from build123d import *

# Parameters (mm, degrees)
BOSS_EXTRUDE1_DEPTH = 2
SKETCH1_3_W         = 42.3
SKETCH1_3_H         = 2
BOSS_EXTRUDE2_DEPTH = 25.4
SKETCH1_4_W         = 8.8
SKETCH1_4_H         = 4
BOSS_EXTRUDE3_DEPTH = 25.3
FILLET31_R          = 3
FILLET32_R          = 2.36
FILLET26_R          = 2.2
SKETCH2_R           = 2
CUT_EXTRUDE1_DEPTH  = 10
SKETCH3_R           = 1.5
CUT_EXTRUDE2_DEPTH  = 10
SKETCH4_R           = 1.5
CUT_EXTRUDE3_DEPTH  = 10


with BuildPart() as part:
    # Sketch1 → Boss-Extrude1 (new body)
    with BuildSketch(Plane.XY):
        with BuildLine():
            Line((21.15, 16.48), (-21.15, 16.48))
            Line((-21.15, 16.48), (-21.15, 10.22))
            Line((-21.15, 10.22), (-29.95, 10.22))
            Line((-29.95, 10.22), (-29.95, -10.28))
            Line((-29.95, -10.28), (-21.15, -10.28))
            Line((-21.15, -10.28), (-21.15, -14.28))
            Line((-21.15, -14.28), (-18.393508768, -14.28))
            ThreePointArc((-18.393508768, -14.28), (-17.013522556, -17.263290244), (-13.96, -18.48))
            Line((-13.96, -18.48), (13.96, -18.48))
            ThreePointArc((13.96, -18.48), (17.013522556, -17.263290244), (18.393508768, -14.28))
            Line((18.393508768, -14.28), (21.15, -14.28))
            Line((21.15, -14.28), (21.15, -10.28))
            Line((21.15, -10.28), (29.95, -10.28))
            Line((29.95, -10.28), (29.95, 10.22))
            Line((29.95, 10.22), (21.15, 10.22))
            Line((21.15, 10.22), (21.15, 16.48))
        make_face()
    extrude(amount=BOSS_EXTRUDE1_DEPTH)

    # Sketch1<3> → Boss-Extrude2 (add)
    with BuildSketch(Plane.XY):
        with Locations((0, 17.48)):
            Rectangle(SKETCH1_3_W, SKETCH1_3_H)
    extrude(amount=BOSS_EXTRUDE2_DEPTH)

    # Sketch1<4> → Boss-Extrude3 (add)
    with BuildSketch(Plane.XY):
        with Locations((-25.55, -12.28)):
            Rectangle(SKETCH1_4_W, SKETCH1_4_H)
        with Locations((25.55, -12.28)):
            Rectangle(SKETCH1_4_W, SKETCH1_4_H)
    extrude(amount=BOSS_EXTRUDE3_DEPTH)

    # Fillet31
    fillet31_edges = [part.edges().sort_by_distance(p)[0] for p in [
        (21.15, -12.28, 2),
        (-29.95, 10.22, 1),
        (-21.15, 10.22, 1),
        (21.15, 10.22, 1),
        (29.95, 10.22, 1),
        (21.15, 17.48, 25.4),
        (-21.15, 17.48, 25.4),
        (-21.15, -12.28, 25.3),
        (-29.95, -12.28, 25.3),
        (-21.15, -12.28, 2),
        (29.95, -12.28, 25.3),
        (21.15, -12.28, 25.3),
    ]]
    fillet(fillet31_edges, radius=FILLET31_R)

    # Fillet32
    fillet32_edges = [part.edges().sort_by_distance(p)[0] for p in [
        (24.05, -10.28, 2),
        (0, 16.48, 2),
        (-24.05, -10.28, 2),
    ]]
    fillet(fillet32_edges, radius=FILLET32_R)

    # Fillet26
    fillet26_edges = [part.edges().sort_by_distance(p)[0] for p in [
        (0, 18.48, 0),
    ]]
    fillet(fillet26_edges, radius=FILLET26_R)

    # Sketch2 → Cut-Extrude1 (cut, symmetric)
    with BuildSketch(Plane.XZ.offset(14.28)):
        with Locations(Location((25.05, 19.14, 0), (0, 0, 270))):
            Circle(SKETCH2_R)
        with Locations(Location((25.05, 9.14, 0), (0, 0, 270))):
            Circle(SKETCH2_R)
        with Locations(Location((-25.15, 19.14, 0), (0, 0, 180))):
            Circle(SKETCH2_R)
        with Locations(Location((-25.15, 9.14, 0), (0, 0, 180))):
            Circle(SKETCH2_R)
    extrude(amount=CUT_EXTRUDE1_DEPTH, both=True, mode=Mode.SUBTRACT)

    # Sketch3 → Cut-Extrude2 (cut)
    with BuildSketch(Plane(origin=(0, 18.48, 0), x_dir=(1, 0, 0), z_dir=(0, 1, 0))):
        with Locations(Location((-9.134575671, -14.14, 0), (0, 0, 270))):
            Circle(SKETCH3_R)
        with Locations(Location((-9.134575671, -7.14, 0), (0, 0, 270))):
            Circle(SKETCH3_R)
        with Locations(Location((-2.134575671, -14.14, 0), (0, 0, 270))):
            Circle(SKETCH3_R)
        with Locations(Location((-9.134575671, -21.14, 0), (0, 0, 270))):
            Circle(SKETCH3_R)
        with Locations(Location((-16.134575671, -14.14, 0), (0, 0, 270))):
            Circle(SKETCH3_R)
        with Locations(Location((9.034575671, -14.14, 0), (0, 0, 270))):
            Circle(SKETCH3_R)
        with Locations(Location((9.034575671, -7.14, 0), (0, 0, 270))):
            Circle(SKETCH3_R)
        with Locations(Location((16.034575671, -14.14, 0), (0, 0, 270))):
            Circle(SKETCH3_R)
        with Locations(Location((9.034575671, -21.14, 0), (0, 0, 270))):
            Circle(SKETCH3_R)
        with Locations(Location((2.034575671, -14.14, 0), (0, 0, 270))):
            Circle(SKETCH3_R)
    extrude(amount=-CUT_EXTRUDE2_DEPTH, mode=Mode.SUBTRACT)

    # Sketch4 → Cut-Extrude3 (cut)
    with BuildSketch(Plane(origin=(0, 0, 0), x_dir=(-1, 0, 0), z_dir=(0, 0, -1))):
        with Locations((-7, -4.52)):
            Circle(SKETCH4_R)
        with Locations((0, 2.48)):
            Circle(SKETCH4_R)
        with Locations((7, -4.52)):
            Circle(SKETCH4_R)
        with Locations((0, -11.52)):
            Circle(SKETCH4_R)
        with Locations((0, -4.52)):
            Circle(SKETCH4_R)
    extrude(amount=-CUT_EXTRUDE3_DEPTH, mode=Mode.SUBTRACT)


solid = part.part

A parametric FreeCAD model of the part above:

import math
import FreeCAD as App
import Part
import Sketcher
Q = App.Units.Quantity


def edges_at(feature, points):
    """Names of the edges that pass closest to the given points."""
    edges = feature.Shape.Edges
    near = lambda p: min(range(len(edges)), key=lambda i: edges[i].distToShape(Part.Vertex(*p))[0])
    return sorted({f"Edge{near(p) + 1}" for p in points})


def add_polygon(sketch, points):
    """Adds a closed chain of lines whose ends are joined by coincident constraints."""
    first, n = sketch.GeometryCount, len(points)
    for a, b in zip(points, points[1:] + points[:1]):
        sketch.addGeometry(Part.LineSegment(App.Vector(*a, 0), App.Vector(*b, 0)), False)
    for i in range(n):
        sketch.addConstraint(Sketcher.Constraint("Coincident", first + i, 2, first + (i + 1) % n, 1))

doc = App.newDocument("Part")
body = doc.addObject("PartDesign::Body", "Body")

# Sketch on XY plane
sketch1 = doc.addObject("Sketcher::SketchObject", "Sketch")
body.addObject(sketch1)
sketch1.AttachmentSupport = (doc.XY_Plane, [""])
sketch1.MapMode = "FlatFace"
sketch1.addGeometry(Part.LineSegment(App.Vector(21.1, 16.5, 0), App.Vector(-21.1, 16.5, 0)), False)
sketch1.addGeometry(Part.LineSegment(App.Vector(-21.1, 16.5, 0), App.Vector(-21.1, 10.2, 0)), False)
sketch1.addGeometry(Part.LineSegment(App.Vector(-21.1, 10.2, 0), App.Vector(-29.9, 10.2, 0)), False)
sketch1.addGeometry(Part.LineSegment(App.Vector(-29.9, 10.2, 0), App.Vector(-29.9, -10.3, 0)), False)
sketch1.addGeometry(Part.LineSegment(App.Vector(-29.9, -10.3, 0), App.Vector(-21.1, -10.3, 0)), False)
sketch1.addGeometry(Part.LineSegment(App.Vector(-21.1, -10.3, 0), App.Vector(-21.1, -14.3, 0)), False)
sketch1.addGeometry(Part.LineSegment(App.Vector(-21.1, -14.3, 0), App.Vector(-18.4, -14.3, 0)), False)
sketch1.addGeometry(Part.ArcOfCircle(Part.Circle(App.Vector(-14, -14, 0), App.Vector(0, 0, 1), 4.4), math.radians(-177), math.radians(-90)), False)
sketch1.addGeometry(Part.LineSegment(App.Vector(-14, -18.5, 0), App.Vector(14, -18.5, 0)), False)
sketch1.addGeometry(Part.ArcOfCircle(Part.Circle(App.Vector(14, -14, 0), App.Vector(0, 0, 1), 4.4), math.radians(-90), math.radians(-3)), False)
sketch1.addGeometry(Part.LineSegment(App.Vector(18.4, -14.3, 0), App.Vector(21.1, -14.3, 0)), False)
sketch1.addGeometry(Part.LineSegment(App.Vector(21.1, -14.3, 0), App.Vector(21.1, -10.3, 0)), False)
sketch1.addGeometry(Part.LineSegment(App.Vector(21.1, -10.3, 0), App.Vector(29.9, -10.3, 0)), False)
sketch1.addGeometry(Part.LineSegment(App.Vector(29.9, -10.3, 0), App.Vector(29.9, 10.2, 0)), False)
sketch1.addGeometry(Part.LineSegment(App.Vector(29.9, 10.2, 0), App.Vector(21.1, 10.2, 0)), False)
sketch1.addGeometry(Part.LineSegment(App.Vector(21.1, 10.2, 0), App.Vector(21.1, 16.5, 0)), False)
sketch1.addConstraint(Sketcher.Constraint("Coincident", 0, 2, 1, 1))
sketch1.addConstraint(Sketcher.Constraint("Coincident", 1, 2, 2, 1))
sketch1.addConstraint(Sketcher.Constraint("Coincident", 2, 2, 3, 1))
sketch1.addConstraint(Sketcher.Constraint("Coincident", 3, 2, 4, 1))
sketch1.addConstraint(Sketcher.Constraint("Coincident", 4, 2, 5, 1))
sketch1.addConstraint(Sketcher.Constraint("Coincident", 5, 2, 6, 1))
sketch1.addConstraint(Sketcher.Constraint("Coincident", 6, 2, 7, 1))
sketch1.addConstraint(Sketcher.Constraint("Tangent", 7, 2, 8, 1))
sketch1.addConstraint(Sketcher.Constraint("Tangent", 8, 2, 9, 1))
sketch1.addConstraint(Sketcher.Constraint("Coincident", 9, 2, 10, 1))
sketch1.addConstraint(Sketcher.Constraint("Coincident", 10, 2, 11, 1))
sketch1.addConstraint(Sketcher.Constraint("Coincident", 11, 2, 12, 1))
sketch1.addConstraint(Sketcher.Constraint("Coincident", 12, 2, 13, 1))
sketch1.addConstraint(Sketcher.Constraint("Coincident", 13, 2, 14, 1))
sketch1.addConstraint(Sketcher.Constraint("Coincident", 14, 2, 15, 1))
sketch1.addConstraint(Sketcher.Constraint("Coincident", 15, 2, 0, 1))
sketch1.addConstraint(Sketcher.Constraint("Horizontal", 0))
sketch1.addConstraint(Sketcher.Constraint("Vertical", 1))
sketch1.addConstraint(Sketcher.Constraint("Horizontal", 2))
sketch1.addConstraint(Sketcher.Constraint("Vertical", 3))
sketch1.addConstraint(Sketcher.Constraint("Horizontal", 4))
sketch1.addConstraint(Sketcher.Constraint("Vertical", 5))
sketch1.addConstraint(Sketcher.Constraint("Horizontal", 6))
sketch1.addConstraint(Sketcher.Constraint("Horizontal", 8))
sketch1.addConstraint(Sketcher.Constraint("Horizontal", 10))
sketch1.addConstraint(Sketcher.Constraint("Vertical", 11))
sketch1.addConstraint(Sketcher.Constraint("Horizontal", 12))
sketch1.addConstraint(Sketcher.Constraint("Vertical", 13))
sketch1.addConstraint(Sketcher.Constraint("Horizontal", 14))
sketch1.addConstraint(Sketcher.Constraint("Vertical", 15))
sketch1.addConstraint(Sketcher.Constraint("Equal", 7, 9))
sketch1.addConstraint(Sketcher.Constraint("Symmetric", 6, 2, 9, 2, -2))
sketch1.addConstraint(Sketcher.Constraint("Symmetric", 4, 2, 11, 2, -2))
sketch1.addConstraint(Sketcher.Constraint("Symmetric", 2, 2, 13, 2, -2))
sketch1.addConstraint(Sketcher.Constraint("Vertical", 1, 2, 4, 2))
sketch1.addConstraint(Sketcher.Constraint("Vertical", 11, 2, 14, 2))
sketch1.addConstraint(Sketcher.Constraint("DistanceY", 5, 2, 5, 1, Q("4 mm")))
sketch1.addConstraint(Sketcher.Constraint("Radius", 7, Q("4.44 mm")))
sketch1.addConstraint(Sketcher.Constraint("DistanceX", 0, 2, 0, 1, Q("42.3 mm")))
sketch1.addConstraint(Sketcher.Constraint("DistanceX", 2, 2, 2, 1, Q("8.8 mm")))
sketch1.addConstraint(Sketcher.Constraint("DistanceY", 3, 2, 3, 1, Q("20.5 mm")))
sketch1.addConstraint(Sketcher.Constraint("DistanceX", 8, 1, 8, 2, Q("27.92 mm")))
sketch1.addConstraint(Sketcher.Constraint("DistanceY", 1, 2, 1, 1, Q("6.26 mm")))
sketch1.addConstraint(Sketcher.Constraint("DistanceY", 7, 2, 6, 2, Q("4.2 mm")))
sketch1.addConstraint(Sketcher.Constraint("DistanceY", 7, 3, -1, 1, Q("14.04 mm")))
pad1 = doc.addObject("PartDesign::Pad", "Pad")
body.addObject(pad1)
pad1.Profile = sketch1
pad1.Length = 2

# Sketch on XY plane
sketch2 = doc.addObject("Sketcher::SketchObject", "Sketch001")
body.addObject(sketch2)
sketch2.AttachmentSupport = (doc.XY_Plane, [""])
sketch2.MapMode = "FlatFace"
add_polygon(sketch2, [(-21.1, 18.5), (-21.1, 16.5), (21.1, 16.5), (21.1, 18.5)])  # lines 0-3
sketch2.addConstraint(Sketcher.Constraint("Vertical", 0))
sketch2.addConstraint(Sketcher.Constraint("Horizontal", 1))
sketch2.addConstraint(Sketcher.Constraint("Vertical", 2))
sketch2.addConstraint(Sketcher.Constraint("Horizontal", 3))
sketch2.addConstraint(Sketcher.Constraint("DistanceY", 0, 2, 0, 1, Q("2 mm")))
sketch2.addConstraint(Sketcher.Constraint("DistanceX", 1, 1, 1, 2, Q("42.3 mm")))
sketch2.addConstraint(Sketcher.Constraint("DistanceX", 0, 2, -1, 1, Q("21.15 mm")))
sketch2.addConstraint(Sketcher.Constraint("DistanceY", -1, 1, 0, 2, Q("16.48 mm")))
pad2 = doc.addObject("PartDesign::Pad", "Pad001")
body.addObject(pad2)
pad2.Profile = sketch2
pad2.Length = 25.4

# Sketch on XY plane
sketch3 = doc.addObject("Sketcher::SketchObject", "Sketch002")
body.addObject(sketch3)
sketch3.AttachmentSupport = (doc.XY_Plane, [""])
sketch3.MapMode = "FlatFace"
add_polygon(sketch3, [(-29.9, -10.3), (-29.9, -14.3), (-21.1, -14.3), (-21.1, -10.3)])  # lines 0-3
add_polygon(sketch3, [(21.1, -10.3), (21.1, -14.3), (29.9, -14.3), (29.9, -10.3)])  # lines 4-7
sketch3.addConstraint(Sketcher.Constraint("Vertical", 0))
sketch3.addConstraint(Sketcher.Constraint("Horizontal", 1))
sketch3.addConstraint(Sketcher.Constraint("Vertical", 2))
sketch3.addConstraint(Sketcher.Constraint("Horizontal", 3))
sketch3.addConstraint(Sketcher.Constraint("Vertical", 4))
sketch3.addConstraint(Sketcher.Constraint("Horizontal", 5))
sketch3.addConstraint(Sketcher.Constraint("Vertical", 6))
sketch3.addConstraint(Sketcher.Constraint("Horizontal", 7))
sketch3.addConstraint(Sketcher.Constraint("Symmetric", 1, 2, 4, 2, -2))
sketch3.addConstraint(Sketcher.Constraint("Symmetric", 3, 2, 6, 2, -2))
sketch3.addConstraint(Sketcher.Constraint("DistanceY", 0, 2, 0, 1, Q("4 mm")))
sketch3.addConstraint(Sketcher.Constraint("DistanceX", 1, 1, 1, 2, Q("8.8 mm")))
sketch3.addConstraint(Sketcher.Constraint("DistanceX", 1, 2, 4, 2, Q("42.3 mm")))
sketch3.addConstraint(Sketcher.Constraint("DistanceY", 0, 2, -1, 1, Q("14.28 mm")))
pad3 = doc.addObject("PartDesign::Pad", "Pad002")
body.addObject(pad3)
pad3.Profile = sketch3
pad3.Length = 25.3
doc.recompute()

fillet = doc.addObject("PartDesign::Fillet", "Fillet")
body.addObject(fillet)
fillet.Base = (pad3, edges_at(pad3, [
    (21.15, -12.28, 2),
    (-29.95, 10.22, 1),
    (-21.15, 10.22, 1),
    (21.15, 10.22, 1),
    (29.95, 10.22, 1),
    (21.15, 17.48, 25.4),
    (-21.15, 17.48, 25.4),
    (-21.15, -12.28, 25.3),
    (-29.95, -12.28, 25.3),
    (-21.15, -12.28, 2),
    (29.95, -12.28, 25.3),
    (21.15, -12.28, 25.3),
]))
fillet.Radius = 3
doc.recompute()

fillet2 = doc.addObject("PartDesign::Fillet", "Fillet001")
body.addObject(fillet2)
fillet2.Base = (fillet, edges_at(fillet, [(24.05, -10.28, 2), (0, 16.48, 2), (-24.05, -10.28, 2)]))
fillet2.Radius = 2.36
doc.recompute()

fillet3 = doc.addObject("PartDesign::Fillet", "Fillet002")
body.addObject(fillet3)
fillet3.Base = (fillet2, edges_at(fillet2, [(0, 18.48, 0)]))
fillet3.Radius = 2.2

# Sketch on XZ plane
sketch4 = doc.addObject("Sketcher::SketchObject", "Sketch003")
body.addObject(sketch4)
sketch4.AttachmentSupport = (doc.XZ_Plane, [""])
sketch4.MapMode = "FlatFace"
sketch4.AttachmentOffset = App.Placement(App.Vector(0, 0, 14.28), App.Rotation())
sketch4.addGeometry(Part.Circle(App.Vector(25.1, 19.1, 0), App.Vector(0, 0, 1), 2), False)
sketch4.addGeometry(Part.Circle(App.Vector(25.1, 9.1, 0), App.Vector(0, 0, 1), 2), False)
sketch4.addGeometry(Part.Circle(App.Vector(-25.1, 19.1, 0), App.Vector(0, 0, 1), 2), False)
sketch4.addGeometry(Part.Circle(App.Vector(-25.1, 9.1, 0), App.Vector(0, 0, 1), 2), False)
sketch4.addConstraint(Sketcher.Constraint("Equal", 0, 1))
sketch4.addConstraint(Sketcher.Constraint("Equal", 1, 2))
sketch4.addConstraint(Sketcher.Constraint("Equal", 2, 3))
sketch4.addConstraint(Sketcher.Constraint("Horizontal", 0, 3, 2, 3))
sketch4.addConstraint(Sketcher.Constraint("Horizontal", 1, 3, 3, 3))
sketch4.addConstraint(Sketcher.Constraint("Vertical", 0, 3, 1, 3))
sketch4.addConstraint(Sketcher.Constraint("Vertical", 2, 3, 3, 3))
sketch4.addConstraint(Sketcher.Constraint("Diameter", 0, Q("4 mm")))
sketch4.addConstraint(Sketcher.Constraint("DistanceY", 1, 3, 0, 3, Q("10 mm")))
sketch4.addConstraint(Sketcher.Constraint("DistanceX", 2, 3, 0, 3, Q("50.2 mm")))
sketch4.addConstraint(Sketcher.Constraint("DistanceX", -1, 1, 0, 3, Q("25.05 mm")))
sketch4.addConstraint(Sketcher.Constraint("DistanceY", -1, 1, 0, 3, Q("19.14 mm")))
pocket1 = doc.addObject("PartDesign::Pocket", "Pocket")
body.addObject(pocket1)
pocket1.Profile = sketch4
pocket1.Length = 20
pocket1.Midplane = True

# Sketch on XZ plane
sketch5 = doc.addObject("Sketcher::SketchObject", "Sketch004")
body.addObject(sketch5)
sketch5.AttachmentSupport = (doc.XZ_Plane, [""])
sketch5.MapMode = "FlatFace"
sketch5.AttachmentOffset = App.Placement(App.Vector(0, 0, -18.48), App.Rotation())
sketch5.addGeometry(Part.Circle(App.Vector(-9.1, 14.1, 0), App.Vector(0, 0, 1), 1.5), False)
sketch5.addGeometry(Part.Circle(App.Vector(-9.1, 7.1, 0), App.Vector(0, 0, 1), 1.5), False)
sketch5.addGeometry(Part.Circle(App.Vector(-2.1, 14.1, 0), App.Vector(0, 0, 1), 1.5), False)
sketch5.addGeometry(Part.Circle(App.Vector(-9.1, 21.1, 0), App.Vector(0, 0, 1), 1.5), False)
sketch5.addGeometry(Part.Circle(App.Vector(-16.1, 14.1, 0), App.Vector(0, 0, 1), 1.5), False)
sketch5.addGeometry(Part.Circle(App.Vector(9, 14.1, 0), App.Vector(0, 0, 1), 1.5), False)
sketch5.addGeometry(Part.Circle(App.Vector(9, 7.1, 0), App.Vector(0, 0, 1), 1.5), False)
sketch5.addGeometry(Part.Circle(App.Vector(16, 14.1, 0), App.Vector(0, 0, 1), 1.5), False)
sketch5.addGeometry(Part.Circle(App.Vector(9, 21.1, 0), App.Vector(0, 0, 1), 1.5), False)
sketch5.addGeometry(Part.Circle(App.Vector(2, 14.1, 0), App.Vector(0, 0, 1), 1.5), False)
sketch5.addConstraint(Sketcher.Constraint("Equal", 0, 1))
sketch5.addConstraint(Sketcher.Constraint("Equal", 1, 2))
sketch5.addConstraint(Sketcher.Constraint("Equal", 2, 3))
sketch5.addConstraint(Sketcher.Constraint("Equal", 3, 4))
sketch5.addConstraint(Sketcher.Constraint("Equal", 4, 5))
sketch5.addConstraint(Sketcher.Constraint("Equal", 5, 6))
sketch5.addConstraint(Sketcher.Constraint("Equal", 6, 7))
sketch5.addConstraint(Sketcher.Constraint("Equal", 7, 8))
sketch5.addConstraint(Sketcher.Constraint("Equal", 8, 9))
sketch5.addConstraint(Sketcher.Constraint("Horizontal", 0, 3, 2, 3))
sketch5.addConstraint(Sketcher.Constraint("Horizontal", 2, 3, 4, 3))
sketch5.addConstraint(Sketcher.Constraint("Horizontal", 4, 3, 5, 3))
sketch5.addConstraint(Sketcher.Constraint("Horizontal", 1, 3, 6, 3))
sketch5.addConstraint(Sketcher.Constraint("Horizontal", 5, 3, 7, 3))
sketch5.addConstraint(Sketcher.Constraint("Horizontal", 3, 3, 8, 3))
sketch5.addConstraint(Sketcher.Constraint("Horizontal", 7, 3, 9, 3))
sketch5.addConstraint(Sketcher.Constraint("Vertical", 0, 3, 1, 3))
sketch5.addConstraint(Sketcher.Constraint("Vertical", 1, 3, 3, 3))
sketch5.addConstraint(Sketcher.Constraint("Vertical", 5, 3, 6, 3))
sketch5.addConstraint(Sketcher.Constraint("Vertical", 6, 3, 8, 3))
sketch5.addConstraint(Sketcher.Constraint("Diameter", 0, Q("3 mm")))
sketch5.addConstraint(Sketcher.Constraint("DistanceY", 1, 3, 0, 3, Q("7 mm")))
sketch5.addConstraint(Sketcher.Constraint("DistanceX", 0, 3, 2, 3, Q("7 mm")))
sketch5.addConstraint(Sketcher.Constraint("DistanceY", 0, 3, 3, 3, Q("7 mm")))
sketch5.addConstraint(Sketcher.Constraint("DistanceX", 4, 3, 0, 3, Q("7 mm")))
sketch5.addConstraint(Sketcher.Constraint("DistanceX", 5, 3, 7, 3, Q("7 mm")))
sketch5.addConstraint(Sketcher.Constraint("DistanceX", 9, 3, 5, 3, Q("7 mm")))
sketch5.addConstraint(Sketcher.Constraint("DistanceY", -1, 1, 0, 3, Q("14.14 mm")))
sketch5.addConstraint(Sketcher.Constraint("DistanceX", 2, 3, 5, 3, Q("11.169151 mm")))
sketch5.addConstraint(Sketcher.Constraint("DistanceX", 0, 3, -1, 1, Q("9.134576 mm")))
pocket2 = doc.addObject("PartDesign::Pocket", "Pocket001")
body.addObject(pocket2)
pocket2.Profile = sketch5
pocket2.Length = 10
pocket2.Reversed = True

# Sketch on XY plane
sketch6 = doc.addObject("Sketcher::SketchObject", "Sketch005")
body.addObject(sketch6)
sketch6.AttachmentSupport = (doc.XY_Plane, [""])
sketch6.MapMode = "FlatFace"
sketch6.addGeometry(Part.Circle(App.Vector(7, -4.5, 0), App.Vector(0, 0, 1), 1.5), False)
sketch6.addGeometry(Part.Circle(App.Vector(0, 2.5, 0), App.Vector(0, 0, 1), 1.5), False)
sketch6.addGeometry(Part.Circle(App.Vector(-7, -4.5, 0), App.Vector(0, 0, 1), 1.5), False)
sketch6.addGeometry(Part.Circle(App.Vector(0, -11.5, 0), App.Vector(0, 0, 1), 1.5), False)
sketch6.addGeometry(Part.Circle(App.Vector(0, -4.5, 0), App.Vector(0, 0, 1), 1.5), False)
sketch6.addConstraint(Sketcher.Constraint("Equal", 0, 1))
sketch6.addConstraint(Sketcher.Constraint("Equal", 1, 2))
sketch6.addConstraint(Sketcher.Constraint("Equal", 2, 3))
sketch6.addConstraint(Sketcher.Constraint("Equal", 3, 4))
sketch6.addConstraint(Sketcher.Constraint("Symmetric", 0, 3, 2, 3, -2))
sketch6.addConstraint(Sketcher.Constraint("PointOnObject", 1, 3, -2))
sketch6.addConstraint(Sketcher.Constraint("PointOnObject", 3, 3, -2))
sketch6.addConstraint(Sketcher.Constraint("PointOnObject", 4, 3, -2))
sketch6.addConstraint(Sketcher.Constraint("Horizontal", 2, 3, 4, 3))
sketch6.addConstraint(Sketcher.Constraint("Diameter", 0, Q("3 mm")))
sketch6.addConstraint(Sketcher.Constraint("DistanceX", -1, 1, 0, 3, Q("7 mm")))
sketch6.addConstraint(Sketcher.Constraint("DistanceY", 0, 3, 1, 3, Q("7 mm")))
sketch6.addConstraint(Sketcher.Constraint("DistanceY", 3, 3, 0, 3, Q("7 mm")))
sketch6.addConstraint(Sketcher.Constraint("DistanceY", 0, 3, -1, 1, Q("4.52 mm")))
pocket3 = doc.addObject("PartDesign::Pocket", "Pocket002")
body.addObject(pocket3)
pocket3.Profile = sketch6
pocket3.Length = 10
pocket3.Reversed = True

doc.recompute()
